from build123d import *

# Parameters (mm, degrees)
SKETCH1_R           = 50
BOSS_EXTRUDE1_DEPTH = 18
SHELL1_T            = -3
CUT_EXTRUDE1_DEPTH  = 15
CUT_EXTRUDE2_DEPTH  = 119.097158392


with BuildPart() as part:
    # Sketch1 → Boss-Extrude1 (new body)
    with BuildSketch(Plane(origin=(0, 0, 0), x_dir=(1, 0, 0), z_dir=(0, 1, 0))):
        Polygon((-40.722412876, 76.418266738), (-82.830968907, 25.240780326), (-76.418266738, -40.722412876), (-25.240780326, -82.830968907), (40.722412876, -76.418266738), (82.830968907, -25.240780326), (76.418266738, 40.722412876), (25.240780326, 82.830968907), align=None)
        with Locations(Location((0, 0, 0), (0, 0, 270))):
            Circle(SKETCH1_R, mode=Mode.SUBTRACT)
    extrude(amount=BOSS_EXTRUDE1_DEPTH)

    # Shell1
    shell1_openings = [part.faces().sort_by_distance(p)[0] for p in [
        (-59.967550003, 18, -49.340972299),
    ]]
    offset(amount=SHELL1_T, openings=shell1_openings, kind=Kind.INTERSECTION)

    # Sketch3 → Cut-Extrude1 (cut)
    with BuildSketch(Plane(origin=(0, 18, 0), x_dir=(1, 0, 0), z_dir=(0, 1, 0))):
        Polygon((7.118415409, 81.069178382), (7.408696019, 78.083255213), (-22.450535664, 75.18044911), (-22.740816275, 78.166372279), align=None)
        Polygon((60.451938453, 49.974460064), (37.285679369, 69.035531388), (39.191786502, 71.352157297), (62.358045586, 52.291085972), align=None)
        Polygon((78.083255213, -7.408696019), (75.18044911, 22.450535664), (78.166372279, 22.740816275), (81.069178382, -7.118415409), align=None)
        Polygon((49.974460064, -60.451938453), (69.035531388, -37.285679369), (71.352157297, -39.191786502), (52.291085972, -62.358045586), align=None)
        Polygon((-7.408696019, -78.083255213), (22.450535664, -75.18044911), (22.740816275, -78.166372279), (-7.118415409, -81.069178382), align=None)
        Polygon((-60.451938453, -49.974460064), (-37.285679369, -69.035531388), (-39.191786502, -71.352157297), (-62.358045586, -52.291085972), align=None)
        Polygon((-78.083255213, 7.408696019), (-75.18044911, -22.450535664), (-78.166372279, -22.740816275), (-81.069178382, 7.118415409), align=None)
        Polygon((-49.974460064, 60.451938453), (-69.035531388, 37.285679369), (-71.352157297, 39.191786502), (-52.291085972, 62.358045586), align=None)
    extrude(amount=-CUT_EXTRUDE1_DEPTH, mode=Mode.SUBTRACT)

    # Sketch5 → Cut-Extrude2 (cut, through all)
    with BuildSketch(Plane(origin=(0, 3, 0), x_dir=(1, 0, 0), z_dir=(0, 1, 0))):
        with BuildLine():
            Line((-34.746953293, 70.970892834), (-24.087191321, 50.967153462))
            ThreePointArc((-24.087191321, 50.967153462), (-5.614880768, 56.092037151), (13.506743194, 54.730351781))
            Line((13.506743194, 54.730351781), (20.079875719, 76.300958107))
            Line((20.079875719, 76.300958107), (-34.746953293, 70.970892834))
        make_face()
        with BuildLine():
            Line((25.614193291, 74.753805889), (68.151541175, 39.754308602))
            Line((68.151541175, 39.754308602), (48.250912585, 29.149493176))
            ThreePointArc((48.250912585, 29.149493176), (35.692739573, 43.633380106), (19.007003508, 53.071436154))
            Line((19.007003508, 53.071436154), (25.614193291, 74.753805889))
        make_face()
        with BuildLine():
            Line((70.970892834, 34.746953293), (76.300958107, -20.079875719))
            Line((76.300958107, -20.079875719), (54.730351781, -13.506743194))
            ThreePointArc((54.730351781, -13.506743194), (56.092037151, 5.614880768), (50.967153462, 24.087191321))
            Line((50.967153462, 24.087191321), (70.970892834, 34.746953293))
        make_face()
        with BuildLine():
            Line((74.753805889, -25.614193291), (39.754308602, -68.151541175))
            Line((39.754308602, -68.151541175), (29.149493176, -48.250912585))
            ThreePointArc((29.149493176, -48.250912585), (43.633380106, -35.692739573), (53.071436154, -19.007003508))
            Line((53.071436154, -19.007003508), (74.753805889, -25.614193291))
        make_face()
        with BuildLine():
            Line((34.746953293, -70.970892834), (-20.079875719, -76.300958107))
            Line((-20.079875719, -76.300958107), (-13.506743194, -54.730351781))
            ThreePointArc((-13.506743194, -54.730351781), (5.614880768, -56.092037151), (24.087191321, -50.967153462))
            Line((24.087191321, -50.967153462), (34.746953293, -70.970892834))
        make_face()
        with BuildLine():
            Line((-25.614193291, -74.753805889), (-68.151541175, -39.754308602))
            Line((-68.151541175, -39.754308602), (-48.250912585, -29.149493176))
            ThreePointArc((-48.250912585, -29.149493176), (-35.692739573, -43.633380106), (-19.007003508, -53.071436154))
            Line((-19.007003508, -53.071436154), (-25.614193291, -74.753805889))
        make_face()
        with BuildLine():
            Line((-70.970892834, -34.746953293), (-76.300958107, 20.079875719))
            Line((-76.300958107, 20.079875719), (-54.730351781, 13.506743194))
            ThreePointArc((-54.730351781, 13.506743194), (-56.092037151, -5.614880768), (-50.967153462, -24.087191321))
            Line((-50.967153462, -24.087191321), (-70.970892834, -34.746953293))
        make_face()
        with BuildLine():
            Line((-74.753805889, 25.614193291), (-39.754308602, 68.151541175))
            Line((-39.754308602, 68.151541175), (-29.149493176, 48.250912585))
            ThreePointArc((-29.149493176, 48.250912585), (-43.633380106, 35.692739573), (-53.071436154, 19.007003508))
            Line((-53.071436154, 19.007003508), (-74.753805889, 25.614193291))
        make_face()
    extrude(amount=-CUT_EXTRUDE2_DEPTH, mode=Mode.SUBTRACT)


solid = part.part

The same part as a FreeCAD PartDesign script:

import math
import FreeCAD as App
import Part
import Sketcher


def faces_at(feature, points):
    """Names of the faces that lie closest to the given points."""
    faces = feature.Shape.Faces
    near = lambda p: min(range(len(faces)), key=lambda i: faces[i].distToShape(Part.Vertex(*p))[0])
    return sorted({f"Face{near(p) + 1}" for p in points})


def add_polygon(sketch, points):
    """Adds a closed chain of lines whose ends are joined by coincident constraints."""
    first, n = sketch.GeometryCount, len(points)
    for a, b in zip(points, points[1:] + points[:1]):
        sketch.addGeometry(Part.LineSegment(App.Vector(*a, 0), App.Vector(*b, 0)), False)
    for i in range(n):
        sketch.addConstraint(Sketcher.Constraint("Coincident", first + i, 2, first + (i + 1) % n, 1))

doc = App.newDocument("Part")
body = doc.addObject("PartDesign::Body", "Body")

# Sketch on XZ plane
sketch1 = doc.addObject("Sketcher::SketchObject", "Sketch")
body.addObject(sketch1)
sketch1.AttachmentSupport = (doc.XZ_Plane, [""])
sketch1.MapMode = "FlatFace"
add_polygon(sketch1, [(-41, -76), (-83, -25), (-76, 41), (-25, 83), (41, 76), (83, 25), (76, -41), (25, -83)])  # lines 0-7
sketch1.addGeometry(Part.Circle(App.Vector(0, 0, 0), App.Vector(0, 0, 1), 50), False)  # 8
sketch1.addConstraint([
    Sketcher.Constraint("Coincident", 8, 3, -1, 1),
    Sketcher.Constraint("Symmetric", 0, 2, 4, 2, -1, 1),
    Sketcher.Constraint("Symmetric", 1, 2, 5, 2, -1, 1),
    Sketcher.Constraint("Symmetric", 2, 2, 6, 2, -1, 1),
    Sketcher.Constraint("Symmetric", 3, 2, 7, 2, -1, 1),
    Sketcher.Constraint("Perpendicular", 0, 2),
    Sketcher.Constraint("Perpendicular", 1, 3),
    Sketcher.Constraint("Equal", 0, 1),
    Sketcher.Constraint("Equal", 1, 2),
    Sketcher.Constraint("Equal", 2, 3),
    Sketcher.Constraint("Diameter", 8, 100.0),
    Sketcher.Constraint("Distance", 0, 66.27417),
    Sketcher.Constraint("DistanceX", 0, 2, -1, 1, 82.830969),
    Sketcher.Constraint("DistanceY", 0, 2, -1, 1, 25.24078),
])
pad1 = doc.addObject("PartDesign::Pad", "Pad")
body.addObject(pad1)
pad1.Profile = sketch1
pad1.Length = 18
pad1.Reversed = True
doc.recompute()

thickness = doc.addObject("PartDesign::Thickness", "Thickness")
body.addObject(thickness)
thickness.Base = (pad1, faces_at(pad1, [(-66.265, 18, 0)]))
thickness.Value = 3
thickness.Reversed = True
thickness.Join = "Intersection"

# Sketch on XZ plane
sketch2 = doc.addObject("Sketcher::SketchObject", "Sketch001")
body.addObject(sketch2)
sketch2.AttachmentSupport = (doc.XZ_Plane, [""])
sketch2.MapMode = "FlatFace"
sketch2.AttachmentOffset = App.Placement(App.Vector(0, 0, -18), App.Rotation())
add_polygon(sketch2, [(7.4, -78.1), (7.1, -81.1), (-22.7, -78.2), (-22.5, -75.2)])  # lines 0-3
add_polygon(sketch2, [(37.3, -69), (60.5, -50), (62.4, -52.3), (39.2, -71.4)])  # lines 4-7
add_polygon(sketch2, [(75.2, -22.5), (78.1, 7.4), (81.1, 7.1), (78.2, -22.7)])  # lines 8-11
add_polygon(sketch2, [(69, 37.3), (50, 60.5), (52.3, 62.4), (71.4, 39.2)])  # lines 12-15
add_polygon(sketch2, [(22.5, 75.2), (-7.4, 78.1), (-7.1, 81.1), (22.7, 78.2)])  # lines 16-19
add_polygon(sketch2, [(-37.3, 69), (-60.5, 50), (-62.4, 52.3), (-39.2, 71.4)])  # lines 20-23
add_polygon(sketch2, [(-75.2, 22.5), (-78.1, -7.4), (-81.1, -7.1), (-78.2, 22.7)])  # lines 24-27
add_polygon(sketch2, [(-69, -37.3), (-50, -60.5), (-52.3, -62.4), (-71.4, -39.2)])  # lines 28-31
sketch2.addConstraint([
    Sketcher.Constraint("Symmetric", 3, 2, 16, 2, -1, 1),
    Sketcher.Constraint("Symmetric", 0, 2, 17, 2, -1, 1),
    Sketcher.Constraint("Symmetric", 1, 2, 18, 2, -1, 1),
    Sketcher.Constraint("Symmetric", 2, 2, 19, 2, -1, 1),
    Sketcher.Constraint("Symmetric", 4, 2, 20, 2, -1, 1),
    Sketcher.Constraint("Symmetric", 5, 2, 21, 2, -1, 1),
    Sketcher.Constraint("Symmetric", 6, 2, 22, 2, -1, 1),
    Sketcher.Constraint("Symmetric", 7, 2, 23, 2, -1, 1),
    Sketcher.Constraint("Symmetric", 8, 2, 24, 2, -1, 1),
    Sketcher.Constraint("Symmetric", 9, 2, 25, 2, -1, 1),
    Sketcher.Constraint("Symmetric", 10, 2, 26, 2, -1, 1),
    Sketcher.Constraint("Symmetric", 11, 2, 27, 2, -1, 1),
    Sketcher.Constraint("Symmetric", 12, 2, 28, 2, -1, 1),
    Sketcher.Constraint("Symmetric", 13, 2, 29, 2, -1, 1),
    Sketcher.Constraint("Symmetric", 14, 2, 30, 2, -1, 1),
    Sketcher.Constraint("Symmetric", 15, 2, 31, 2, -1, 1),
    Sketcher.Constraint("Perpendicular", 0, 1),
    Sketcher.Constraint("Perpendicular", 1, 2),
    Sketcher.Constraint("Perpendicular", 2, 3),
    Sketcher.Constraint("Perpendicular", 4, 5),
    Sketcher.Constraint("Perpendicular", 5, 6),
    Sketcher.Constraint("Perpendicular", 6, 7),
    Sketcher.Constraint("Perpendicular", 3, 8),
    Sketcher.Constraint("Perpendicular", 8, 9),
    Sketcher.Constraint("Perpendicular", 9, 10),
    Sketcher.Constraint("Perpendicular", 10, 11),
    Sketcher.Constraint("Parallel", 7, 12),
    Sketcher.Constraint("Perpendicular", 12, 13),
    Sketcher.Constraint("Perpendicular", 13, 14),
    Sketcher.Constraint("Perpendicular", 14, 15),
    Sketcher.Constraint("Equal", 3, 4),
    Sketcher.Constraint("Equal", 2, 5),
    Sketcher.Constraint("Equal", 6, 8),
    Sketcher.Constraint("Equal", 7, 9),
    Sketcher.Constraint("Equal", 10, 12),
    Sketcher.Constraint("Equal", 11, 13),
    Sketcher.Constraint("Distance", 0, 3.0),
    Sketcher.Constraint("Distance", 1, 30.0),
    Sketcher.Constraint("DistanceY", 5, 2, 9, 2, 59.409501),
    Sketcher.Constraint("DistanceX", 7, 2, 9, 2, 43.783499),
    Sketcher.Constraint("DistanceY", 4, 2, 12, 2, 110.426399),
    Sketcher.Constraint("DistanceX", 17, 2, 13, 2, 59.409501),
    Sketcher.Constraint("DistanceY", 15, 2, 17, 2, 43.783499),
    Sketcher.Constraint("DistanceX", 20, 2, 12, 2, 110.426399),
    Sketcher.Constraint("DistanceY", 0, 2, -1, 1, 81.069178),
    Sketcher.Constraint("DistanceY", 2, 2, -1, 1, 75.180449),
    Sketcher.Constraint("DistanceX", -1, 1, 4, 2, 60.451938),
    Sketcher.Constraint("DistanceY", 4, 2, -1, 1, 49.97446),
])
pocket1 = doc.addObject("PartDesign::Pocket", "Pocket")
body.addObject(pocket1)
pocket1.Profile = sketch2
pocket1.Length = 15
pocket1.Reversed = True

# Sketch on XZ plane
sketch3 = doc.addObject("Sketcher::SketchObject", "Sketch002")
body.addObject(sketch3)
sketch3.AttachmentSupport = (doc.XZ_Plane, [""])
sketch3.MapMode = "FlatFace"
sketch3.AttachmentOffset = App.Placement(App.Vector(0, 0, -3), App.Rotation())
sketch3.addGeometry([
    Part.LineSegment(App.Vector(-35, -71, 0), App.Vector(-24, -51, 0)),  # 0
    Part.ArcOfCircle(Part.Circle(App.Vector(0, 0, 0), App.Vector(0, 0, 1), 56), math.radians(-115), math.radians(-76)),  # 1
    Part.LineSegment(App.Vector(14, -55, 0), App.Vector(20, -76, 0)),  # 2
    Part.LineSegment(App.Vector(20, -76, 0), App.Vector(-35, -71, 0)),  # 3
    Part.LineSegment(App.Vector(68, -40, 0), App.Vector(26, -75, 0)),  # 4
    Part.LineSegment(App.Vector(26, -75, 0), App.Vector(19, -53, 0)),  # 5
    Part.ArcOfCircle(Part.Circle(App.Vector(0, 0, 0), App.Vector(0, 0, 1), 56), math.radians(-70), math.radians(-31)),  # 6
    Part.LineSegment(App.Vector(48, -29, 0), App.Vector(68, -40, 0)),  # 7
    Part.LineSegment(App.Vector(76, 20, 0), App.Vector(71, -35, 0)),  # 8
    Part.LineSegment(App.Vector(71, -35, 0), App.Vector(51, -24, 0)),  # 9
    Part.ArcOfCircle(Part.Circle(App.Vector(0, 0, 0), App.Vector(0, 0, 1), 56), math.radians(-25), math.radians(14)),  # 10
    Part.LineSegment(App.Vector(55, 14, 0), App.Vector(76, 20, 0)),  # 11
    Part.LineSegment(App.Vector(40, 68, 0), App.Vector(75, 26, 0)),  # 12
    Part.LineSegment(App.Vector(75, 26, 0), App.Vector(53, 19, 0)),  # 13
    Part.ArcOfCircle(Part.Circle(App.Vector(0, 0, 0), App.Vector(0, 0, 1), 56), math.radians(20), math.radians(59)),  # 14
    Part.LineSegment(App.Vector(29, 48, 0), App.Vector(40, 68, 0)),  # 15
    Part.LineSegment(App.Vector(-20, 76, 0), App.Vector(35, 71, 0)),  # 16
    Part.LineSegment(App.Vector(35, 71, 0), App.Vector(24, 51, 0)),  # 17
    Part.ArcOfCircle(Part.Circle(App.Vector(0, 0, 0), App.Vector(0, 0, 1), 56), math.radians(65), math.radians(104)),  # 18
    Part.LineSegment(App.Vector(-14, 55, 0), App.Vector(-20, 76, 0)),  # 19
    Part.LineSegment(App.Vector(-68, 40, 0), App.Vector(-26, 75, 0)),  # 20
    Part.LineSegment(App.Vector(-26, 75, 0), App.Vector(-19, 53, 0)),  # 21
    Part.ArcOfCircle(Part.Circle(App.Vector(0, 0, 0), App.Vector(0, 0, 1), 56), math.radians(110), math.radians(149)),  # 22
    Part.LineSegment(App.Vector(-48, 29, 0), App.Vector(-68, 40, 0)),  # 23
    Part.LineSegment(App.Vector(-76, -20, 0), App.Vector(-71, 35, 0)),  # 24
    Part.LineSegment(App.Vector(-71, 35, 0), App.Vector(-51, 24, 0)),  # 25
    Part.ArcOfCircle(Part.Circle(App.Vector(0, 0, 0), App.Vector(0, 0, 1), 56), math.radians(155), math.radians(194)),  # 26
    Part.LineSegment(App.Vector(-55, -14, 0), App.Vector(-76, -20, 0)),  # 27
    Part.LineSegment(App.Vector(-40, -68, 0), App.Vector(-75, -26, 0)),  # 28
    Part.LineSegment(App.Vector(-75, -26, 0), App.Vector(-53, -19, 0)),  # 29
    Part.ArcOfCircle(Part.Circle(App.Vector(0, 0, 0), App.Vector(0, 0, 1), 56), math.radians(-160), math.radians(-121)),  # 30
    Part.LineSegment(App.Vector(-29, -48, 0), App.Vector(-40, -68, 0)),  # 31
], False)
sketch3.addConstraint([
    Sketcher.Constraint("Coincident", 0, 2, 1, 1),
    Sketcher.Constraint("Coincident", 1, 2, 2, 1),
    Sketcher.Constraint("Coincident", 2, 2, 3, 1),
    Sketcher.Constraint("Coincident", 3, 2, 0, 1),
    Sketcher.Constraint("Coincident", 4, 2, 5, 1),
    Sketcher.Constraint("Coincident", 5, 2, 6, 1),
    Sketcher.Constraint("Coincident", 6, 2, 7, 1),
    Sketcher.Constraint("Coincident", 7, 2, 4, 1),
    Sketcher.Constraint("Coincident", 8, 2, 9, 1),
    Sketcher.Constraint("Coincident", 9, 2, 10, 1),
    Sketcher.Constraint("Coincident", 10, 2, 11, 1),
    Sketcher.Constraint("Coincident", 11, 2, 8, 1),
    Sketcher.Constraint("Coincident", 12, 2, 13, 1),
    Sketcher.Constraint("Coincident", 13, 2, 14, 1),
    Sketcher.Constraint("Coincident", 14, 2, 15, 1),
    Sketcher.Constraint("Coincident", 15, 2, 12, 1),
    Sketcher.Constraint("Coincident", 16, 2, 17, 1),
    Sketcher.Constraint("Coincident", 17, 2, 18, 1),
    Sketcher.Constraint("Coincident", 18, 2, 19, 1),
    Sketcher.Constraint("Coincident", 19, 2, 16, 1),
    Sketcher.Constraint("Coincident", 20, 2, 21, 1),
    Sketcher.Constraint("Coincident", 21, 2, 22, 1),
    Sketcher.Constraint("Coincident", 22, 2, 23, 1),
    Sketcher.Constraint("Coincident", 23, 2, 20, 1),
    Sketcher.Constraint("Coincident", 24, 2, 25, 1),
    Sketcher.Constraint("Coincident", 25, 2, 26, 1),
    Sketcher.Constraint("Coincident", 26, 2, 27, 1),
    Sketcher.Constraint("Coincident", 27, 2, 24, 1),
    Sketcher.Constraint("Coincident", 28, 2, 29, 1),
    Sketcher.Constraint("Coincident", 29, 2, 30, 1),
    Sketcher.Constraint("Coincident", 30, 2, 31, 1),
    Sketcher.Constraint("Coincident", 31, 2, 28, 1),
    Sketcher.Constraint("Coincident", 1, 3, -1, 1),
    Sketcher.Constraint("Coincident", 6, 3, -1, 1),
    Sketcher.Constraint("Coincident", 10, 3, -1, 1),
    Sketcher.Constraint("Coincident", 14, 3, -1, 1),
    Sketcher.Constraint("Coincident", 18, 3, -1, 1),
    Sketcher.Constraint("Coincident", 22, 3, -1, 1),
    Sketcher.Constraint("Coincident", 26, 3, -1, 1),
    Sketcher.Constraint("Coincident", 30, 3, -1, 1),
    Sketcher.Constraint("Equal", 1, 6),
    Sketcher.Constraint("Equal", 6, 10),
    Sketcher.Constraint("Equal", 10, 14),
    Sketcher.Constraint("Equal", 14, 18),
    Sketcher.Constraint("Equal", 18, 22),
    Sketcher.Constraint("Equal", 22, 26),
    Sketcher.Constraint("Equal", 26, 30),
    Sketcher.Constraint("Symmetric", 3, 2, 16, 2, -1, 1),
    Sketcher.Constraint("Symmetric", 2, 2, 19, 2, -1, 1),
    Sketcher.Constraint("Symmetric", 4, 2, 20, 2, -1, 1),
    Sketcher.Constraint("Symmetric", 7, 2, 23, 2, -1, 1),
    Sketcher.Constraint("Symmetric", 8, 2, 24, 2, -1, 1),
    Sketcher.Constraint("Symmetric", 11, 2, 27, 2, -1, 1),
    Sketcher.Constraint("Symmetric", 12, 2, 28, 2, -1, 1),
    Sketcher.Constraint("Symmetric", 15, 2, 31, 2, -1, 1),
    Sketcher.Constraint("Parallel", 2, 5),
    Sketcher.Constraint("Perpendicular", 0, 7),
    Sketcher.Constraint("Perpendicular", 3, 8),
    Sketcher.Constraint("Parallel", 7, 9),
    Sketcher.Constraint("Perpendicular", 5, 11),
    Sketcher.Constraint("Perpendicular", 4, 12),
    Sketcher.Constraint("Parallel", 11, 13),
    Sketcher.Constraint("Perpendicular", 9, 15),
    Sketcher.Constraint("Parallel", 15, 17),
    Sketcher.Constraint("Perpendicular", 13, 19),
    Sketcher.Constraint("Parallel", 19, 21),
    Sketcher.Constraint("Perpendicular", 17, 23),
    Sketcher.Constraint("Parallel", 23, 25),
    Sketcher.Constraint("Perpendicular", 21, 27),
    Sketcher.Constraint("Parallel", 27, 29),
    Sketcher.Constraint("Perpendicular", 25, 31),
    Sketcher.Constraint("Equal", 3, 4),
    Sketcher.Constraint("Equal", 0, 5),
    Sketcher.Constraint("Equal", 2, 7),
    Sketcher.Constraint("Equal", 4, 8),
    Sketcher.Constraint("Equal", 5, 9),
    Sketcher.Constraint("Equal", 7, 11),
    Sketcher.Constraint("Equal", 8, 12),
    Sketcher.Constraint("Equal", 9, 13),
    Sketcher.Constraint("Equal", 11, 15),
    Sketcher.Constraint("Radius", 1, 56.372365),
    Sketcher.Constraint("DistanceY", 1, 2, 0, 2, 3.763198),
    Sketcher.Constraint("DistanceX", 4, 2, 8, 2, 45.3567),
    Sketcher.Constraint("DistanceY", 1, 2, 8, 2, 19.983398),
    Sketcher.Constraint("DistanceY", 6, 2, 9, 2, 5.062302),
    Sketcher.Constraint("Distance", 0, 22.666718),
    Sketcher.Constraint("Distance", 2, 22.549881),
    Sketcher.Constraint("DistanceX", 0, 2, -1, 1, 24.087191),
])
pocket2 = doc.addObject("PartDesign::Pocket", "Pocket001")
body.addObject(pocket2)
pocket2.Profile = sketch3
pocket2.Type = "ThroughAll"
pocket2.Reversed = True

doc.recompute()
